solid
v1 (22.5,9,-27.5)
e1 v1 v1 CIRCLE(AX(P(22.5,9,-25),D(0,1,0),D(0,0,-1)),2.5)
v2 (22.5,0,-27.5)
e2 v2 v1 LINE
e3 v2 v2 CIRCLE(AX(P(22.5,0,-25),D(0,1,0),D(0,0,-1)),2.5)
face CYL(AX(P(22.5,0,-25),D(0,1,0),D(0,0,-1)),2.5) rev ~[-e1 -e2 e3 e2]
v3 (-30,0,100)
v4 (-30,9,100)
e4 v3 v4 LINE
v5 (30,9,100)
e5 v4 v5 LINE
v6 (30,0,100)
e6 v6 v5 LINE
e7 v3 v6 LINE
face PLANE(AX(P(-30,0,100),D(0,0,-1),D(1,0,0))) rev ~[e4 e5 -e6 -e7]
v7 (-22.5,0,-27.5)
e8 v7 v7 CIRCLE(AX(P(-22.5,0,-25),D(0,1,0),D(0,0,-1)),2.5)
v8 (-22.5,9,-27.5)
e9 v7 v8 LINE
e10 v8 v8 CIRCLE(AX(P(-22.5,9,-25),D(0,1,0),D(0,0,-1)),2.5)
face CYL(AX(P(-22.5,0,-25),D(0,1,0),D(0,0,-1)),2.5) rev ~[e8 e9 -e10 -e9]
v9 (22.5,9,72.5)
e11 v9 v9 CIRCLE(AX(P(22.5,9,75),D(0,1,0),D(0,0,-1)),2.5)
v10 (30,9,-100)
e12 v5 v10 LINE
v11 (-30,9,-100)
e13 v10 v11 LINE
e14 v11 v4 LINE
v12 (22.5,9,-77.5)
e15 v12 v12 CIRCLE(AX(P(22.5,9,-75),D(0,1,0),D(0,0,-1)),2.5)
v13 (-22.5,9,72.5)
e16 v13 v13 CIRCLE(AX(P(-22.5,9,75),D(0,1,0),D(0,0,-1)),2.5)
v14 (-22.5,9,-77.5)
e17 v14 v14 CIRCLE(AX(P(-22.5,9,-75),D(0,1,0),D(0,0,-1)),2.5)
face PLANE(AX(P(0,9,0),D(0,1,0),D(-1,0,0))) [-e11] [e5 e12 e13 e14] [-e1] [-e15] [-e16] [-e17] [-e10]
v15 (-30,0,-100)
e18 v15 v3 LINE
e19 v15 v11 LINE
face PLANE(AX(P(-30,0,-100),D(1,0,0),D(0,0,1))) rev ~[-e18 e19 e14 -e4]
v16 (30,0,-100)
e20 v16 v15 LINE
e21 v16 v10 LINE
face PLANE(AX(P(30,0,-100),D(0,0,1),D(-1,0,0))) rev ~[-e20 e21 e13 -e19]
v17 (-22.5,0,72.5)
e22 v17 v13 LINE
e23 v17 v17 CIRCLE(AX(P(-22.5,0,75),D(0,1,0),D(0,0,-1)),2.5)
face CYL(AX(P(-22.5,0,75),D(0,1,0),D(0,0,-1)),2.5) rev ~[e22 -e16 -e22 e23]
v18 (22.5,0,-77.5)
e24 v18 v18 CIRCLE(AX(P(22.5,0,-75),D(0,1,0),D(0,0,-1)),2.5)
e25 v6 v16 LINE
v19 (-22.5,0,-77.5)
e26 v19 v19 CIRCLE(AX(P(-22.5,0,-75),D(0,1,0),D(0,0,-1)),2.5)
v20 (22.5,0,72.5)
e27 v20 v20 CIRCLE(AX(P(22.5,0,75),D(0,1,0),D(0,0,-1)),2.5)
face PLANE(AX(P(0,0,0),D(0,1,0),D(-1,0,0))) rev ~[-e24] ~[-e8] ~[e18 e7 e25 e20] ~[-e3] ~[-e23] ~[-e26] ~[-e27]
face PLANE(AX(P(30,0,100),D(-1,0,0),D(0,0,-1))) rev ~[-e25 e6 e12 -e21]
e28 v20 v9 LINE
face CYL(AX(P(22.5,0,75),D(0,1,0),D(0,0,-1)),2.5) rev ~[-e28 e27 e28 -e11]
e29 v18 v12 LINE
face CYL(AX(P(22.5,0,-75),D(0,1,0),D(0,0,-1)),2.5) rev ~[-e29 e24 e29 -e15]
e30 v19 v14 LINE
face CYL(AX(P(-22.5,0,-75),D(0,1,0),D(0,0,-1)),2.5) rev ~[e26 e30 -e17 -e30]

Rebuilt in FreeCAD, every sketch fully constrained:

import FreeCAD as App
import Part
import Sketcher
Q = App.Units.Quantity


def add_polygon(sketch, points):
    """Adds a closed chain of lines whose ends are joined by coincident constraints."""
    first, n = sketch.GeometryCount, len(points)
    for a, b in zip(points, points[1:] + points[:1]):
        sketch.addGeometry(Part.LineSegment(App.Vector(*a, 0), App.Vector(*b, 0)), False)
    for i in range(n):
        sketch.addConstraint(Sketcher.Constraint("Coincident", first + i, 2, first + (i + 1) % n, 1))

doc = App.newDocument("Part")
body = doc.addObject("PartDesign::Body", "Body")

# Sketch on XZ plane
sketch1 = body.newObject("Sketcher::SketchObject", "Sketch")
sketch1.AttachmentSupport = (doc.getObject("XZ_Plane"), [""])
sketch1.MapMode = "FlatFace"
add_polygon(sketch1, [(-30, -100), (-30, 100), (30, 100), (30, -100)])  # lines 0-3
sketch1.addConstraint(Sketcher.Constraint("Vertical", 0))
sketch1.addConstraint(Sketcher.Constraint("Horizontal", 1))
sketch1.addConstraint(Sketcher.Constraint("Vertical", 2))
sketch1.addConstraint(Sketcher.Constraint("Horizontal", 3))
sketch1.addConstraint(Sketcher.Constraint("Symmetric", 0, 2, 2, 2, -1, 1))
sketch1.addConstraint(Sketcher.Constraint("DistanceX", 1, 1, 1, 2, Q("60 mm")))
sketch1.addConstraint(Sketcher.Constraint("DistanceY", 0, 1, 0, 2, Q("200 mm")))
pad1 = body.newObject("PartDesign::Pad", "Pad")
pad1.Profile = sketch1
pad1.Length = 9
pad1.Reversed = True

# Sketch on XZ plane
sketch2 = body.newObject("Sketcher::SketchObject", "Sketch001")
sketch2.AttachmentSupport = (doc.getObject("XZ_Plane"), [""])
sketch2.MapMode = "FlatFace"
sketch2.addGeometry(Part.Circle(App.Vector(22.5, 75, 0), App.Vector(0, 0, 1), 2.5), False)
sketch2.addGeometry(Part.Circle(App.Vector(-22.5, 75, 0), App.Vector(0, 0, 1), 2.5), False)
sketch2.addGeometry(Part.Circle(App.Vector(-22.5, -25, 0), App.Vector(0, 0, 1), 2.5), False)
sketch2.addGeometry(Part.Circle(App.Vector(22.5, -25, 0), App.Vector(0, 0, 1), 2.5), False)
sketch2.addGeometry(Part.Circle(App.Vector(-22.5, -75, 0), App.Vector(0, 0, 1), 2.5), False)
sketch2.addGeometry(Part.Circle(App.Vector(22.5, -75, 0), App.Vector(0, 0, 1), 2.5), False)
sketch2.addConstraint(Sketcher.Constraint("Equal", 0, 1))
sketch2.addConstraint(Sketcher.Constraint("Equal", 1, 2))
sketch2.addConstraint(Sketcher.Constraint("Equal", 2, 3))
sketch2.addConstraint(Sketcher.Constraint("Equal", 3, 4))
sketch2.addConstraint(Sketcher.Constraint("Equal", 4, 5))
sketch2.addConstraint(Sketcher.Constraint("Symmetric", 0, 3, 4, 3, -1, 1))
sketch2.addConstraint(Sketcher.Constraint("Symmetric", 1, 3, 5, 3, -1, 1))
sketch2.addConstraint(Sketcher.Constraint("Symmetric", 0, 3, 1, 3, -2))
sketch2.addConstraint(Sketcher.Constraint("Symmetric", 2, 3, 3, 3, -2))
sketch2.addConstraint(Sketcher.Constraint("Vertical", 1, 3, 2, 3))
sketch2.addConstraint(Sketcher.Constraint("Diameter", 0, Q("5 mm")))
sketch2.addConstraint(Sketcher.Constraint("DistanceY", -1, 1, 0, 3, Q("75 mm")))
sketch2.addConstraint(Sketcher.Constraint("DistanceY", 2, 3, -1, 1, Q("25 mm")))
sketch2.addConstraint(Sketcher.Constraint("DistanceX", 1, 3, 0, 3, Q("45 mm")))
doc.recompute()
hole = body.newObject("PartDesign::Hole", "Hole")
hole.Profile = sketch2
hole.ThreadType = "None"
hole.Diameter = 5
hole.DepthType = "Dimension"
hole.Depth = 11
hole.DrillPoint = "Flat"

doc.recompute()
